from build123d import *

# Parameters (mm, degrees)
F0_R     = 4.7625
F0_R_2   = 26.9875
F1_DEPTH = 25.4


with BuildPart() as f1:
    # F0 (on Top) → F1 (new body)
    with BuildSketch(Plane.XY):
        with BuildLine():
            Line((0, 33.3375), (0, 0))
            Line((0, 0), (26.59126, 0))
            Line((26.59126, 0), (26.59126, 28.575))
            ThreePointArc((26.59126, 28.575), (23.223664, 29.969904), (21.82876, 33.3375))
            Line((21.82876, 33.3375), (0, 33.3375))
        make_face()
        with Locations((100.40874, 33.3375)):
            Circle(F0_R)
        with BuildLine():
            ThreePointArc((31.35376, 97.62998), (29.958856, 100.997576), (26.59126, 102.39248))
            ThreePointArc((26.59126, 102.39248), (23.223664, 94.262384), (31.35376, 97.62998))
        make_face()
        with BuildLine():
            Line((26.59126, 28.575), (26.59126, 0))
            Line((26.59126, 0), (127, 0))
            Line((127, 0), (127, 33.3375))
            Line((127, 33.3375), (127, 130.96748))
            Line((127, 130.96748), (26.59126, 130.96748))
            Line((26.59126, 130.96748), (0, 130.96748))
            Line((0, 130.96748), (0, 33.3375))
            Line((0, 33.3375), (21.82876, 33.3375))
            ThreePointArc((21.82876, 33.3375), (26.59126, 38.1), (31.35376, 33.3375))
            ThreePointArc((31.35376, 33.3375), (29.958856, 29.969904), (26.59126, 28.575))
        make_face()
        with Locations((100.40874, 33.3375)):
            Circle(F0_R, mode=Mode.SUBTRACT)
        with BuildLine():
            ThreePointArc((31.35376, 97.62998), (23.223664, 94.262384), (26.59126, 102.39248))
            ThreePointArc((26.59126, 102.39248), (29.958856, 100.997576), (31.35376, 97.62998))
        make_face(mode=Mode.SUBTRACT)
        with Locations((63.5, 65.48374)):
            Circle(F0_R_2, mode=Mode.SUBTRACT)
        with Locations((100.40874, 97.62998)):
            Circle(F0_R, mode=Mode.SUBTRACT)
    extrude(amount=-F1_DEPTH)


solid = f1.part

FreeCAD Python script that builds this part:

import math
import FreeCAD as App
import Part
import Sketcher
from FreeCAD import Vector
Q = App.Units.Quantity

doc = App.newDocument("Part")
body = doc.addObject("PartDesign::Body", "Body")

# Sketch on XY plane
sketch1 = body.newObject("Sketcher::SketchObject", "Sketch")
sketch1.AttachmentSupport = (doc.getObject("XY_Plane"), [""])
sketch1.MapMode = "FlatFace"
sketch1.addGeometry(Part.LineSegment(Vector(0, 0, 0), Vector(127, 0, 0)), False)
sketch1.addGeometry(Part.LineSegment(Vector(127, 0, 0), Vector(127, 131, 0)), False)
sketch1.addGeometry(Part.LineSegment(Vector(127, 131, 0), Vector(0, 131, 0)), False)
sketch1.addGeometry(Part.LineSegment(Vector(0, 131, 0), Vector(0, 0, 0)), False)
sketch1.addGeometry(Part.ArcOfCircle(Part.Circle(Vector(26.6, 33.3, 0), Vector(0, 0, 1), 4.8), math.radians(-180), math.radians(-90)), False)
sketch1.addGeometry(Part.ArcOfCircle(Part.Circle(Vector(26.6, 33.3, 0), Vector(0, 0, 1), 4.8), math.radians(0), math.radians(180)), False)
sketch1.addGeometry(Part.ArcOfCircle(Part.Circle(Vector(26.6, 33.3, 0), Vector(0, 0, 1), 4.8), math.radians(-90), math.radians(0)), False)
sketch1.addGeometry(Part.Circle(Vector(100.4, 33.3, 0), Vector(0, 0, 1), 4.8), False)
sketch1.addGeometry(Part.Circle(Vector(63.5, 65.5, 0), Vector(0, 0, 1), 27), False)
sketch1.addGeometry(Part.ArcOfCircle(Part.Circle(Vector(26.6, 97.6, 0), Vector(0, 0, 1), 4.8), math.radians(0), math.radians(90)), False)
sketch1.addGeometry(Part.ArcOfCircle(Part.Circle(Vector(26.6, 97.6, 0), Vector(0, 0, 1), 4.8), math.radians(90), math.radians(360)), False)
sketch1.addGeometry(Part.Circle(Vector(100.4, 97.6, 0), Vector(0, 0, 1), 4.8), False)
sketch1.addConstraint(Sketcher.Constraint("Coincident", 0, 2, 1, 1))
sketch1.addConstraint(Sketcher.Constraint("Coincident", 1, 2, 2, 1))
sketch1.addConstraint(Sketcher.Constraint("Coincident", 2, 2, 3, 1))
sketch1.addConstraint(Sketcher.Constraint("Coincident", 3, 2, 0, 1))
sketch1.addConstraint(Sketcher.Constraint("Tangent", 4, 1, 5, 2))
sketch1.addConstraint(Sketcher.Constraint("Tangent", 5, 1, 6, 2))
sketch1.addConstraint(Sketcher.Constraint("Tangent", 6, 1, 4, 2))
sketch1.addConstraint(Sketcher.Constraint("Tangent", 9, 1, 10, 2))
sketch1.addConstraint(Sketcher.Constraint("Coincident", 10, 1, 9, 2))
sketch1.addConstraint(Sketcher.Constraint("Horizontal", 0))
sketch1.addConstraint(Sketcher.Constraint("Vertical", 1))
sketch1.addConstraint(Sketcher.Constraint("Horizontal", 2))
sketch1.addConstraint(Sketcher.Constraint("Vertical", 3))
sketch1.addConstraint(Sketcher.Constraint("Coincident", 3, 2, -1, 1))
sketch1.addConstraint(Sketcher.Constraint("Equal", 6, 7))
sketch1.addConstraint(Sketcher.Constraint("Equal", 7, 9))
sketch1.addConstraint(Sketcher.Constraint("Equal", 10, 11))
sketch1.addConstraint(Sketcher.Constraint("Horizontal", 6, 3, 7, 3))
sketch1.addConstraint(Sketcher.Constraint("Horizontal", 10, 3, 11, 3))
sketch1.addConstraint(Sketcher.Constraint("Horizontal", 7, 3, 4, 1))
sketch1.addConstraint(Sketcher.Constraint("Horizontal", 4, 1, 5, 1))
sketch1.addConstraint(Sketcher.Constraint("Horizontal", 11, 3, 9, 1))
sketch1.addConstraint(Sketcher.Constraint("Vertical", 6, 3, 9, 3))
sketch1.addConstraint(Sketcher.Constraint("Vertical", 7, 3, 11, 3))
sketch1.addConstraint(Sketcher.Constraint("Vertical", 10, 3, 6, 1))
sketch1.addConstraint(Sketcher.Constraint("Vertical", 6, 1, 10, 1))
sketch1.addConstraint(Sketcher.Constraint("DistanceX", 0, 1, 0, 2, Q("5 in")))
sketch1.addConstraint(Sketcher.Constraint("Diameter", 7, Q("0.375 in")))
sketch1.addConstraint(Sketcher.Constraint("Diameter", 8, Q("2.125 in")))
sketch1.addConstraint(Sketcher.Constraint("DistanceX", -1, 1, 8, 3, Q("2.5 in")))
sketch1.addConstraint(Sketcher.Constraint("DistanceY", 1, 1, 1, 2, Q("5.1562 in")))
sketch1.addConstraint(Sketcher.Constraint("DistanceY", -1, 1, 4, 3, Q("1.3125 in")))
sketch1.addConstraint(Sketcher.Constraint("DistanceY", 11, 3, 1, 2, Q("1.3125 in")))
sketch1.addConstraint(Sketcher.Constraint("DistanceX", -1, 1, 4, 3, Q("1.0469 in")))
sketch1.addConstraint(Sketcher.Constraint("DistanceX", -1, 1, 7, 3, Q("3.9531 in")))
sketch1.addConstraint(Sketcher.Constraint("DistanceY", -1, 1, 8, 3, Q("2.5781 in")))
pad1 = body.newObject("PartDesign::Pad", "Pad")
pad1.Profile = sketch1
pad1.Length = Q("1 in")
pad1.Reversed = True

doc.recompute()
